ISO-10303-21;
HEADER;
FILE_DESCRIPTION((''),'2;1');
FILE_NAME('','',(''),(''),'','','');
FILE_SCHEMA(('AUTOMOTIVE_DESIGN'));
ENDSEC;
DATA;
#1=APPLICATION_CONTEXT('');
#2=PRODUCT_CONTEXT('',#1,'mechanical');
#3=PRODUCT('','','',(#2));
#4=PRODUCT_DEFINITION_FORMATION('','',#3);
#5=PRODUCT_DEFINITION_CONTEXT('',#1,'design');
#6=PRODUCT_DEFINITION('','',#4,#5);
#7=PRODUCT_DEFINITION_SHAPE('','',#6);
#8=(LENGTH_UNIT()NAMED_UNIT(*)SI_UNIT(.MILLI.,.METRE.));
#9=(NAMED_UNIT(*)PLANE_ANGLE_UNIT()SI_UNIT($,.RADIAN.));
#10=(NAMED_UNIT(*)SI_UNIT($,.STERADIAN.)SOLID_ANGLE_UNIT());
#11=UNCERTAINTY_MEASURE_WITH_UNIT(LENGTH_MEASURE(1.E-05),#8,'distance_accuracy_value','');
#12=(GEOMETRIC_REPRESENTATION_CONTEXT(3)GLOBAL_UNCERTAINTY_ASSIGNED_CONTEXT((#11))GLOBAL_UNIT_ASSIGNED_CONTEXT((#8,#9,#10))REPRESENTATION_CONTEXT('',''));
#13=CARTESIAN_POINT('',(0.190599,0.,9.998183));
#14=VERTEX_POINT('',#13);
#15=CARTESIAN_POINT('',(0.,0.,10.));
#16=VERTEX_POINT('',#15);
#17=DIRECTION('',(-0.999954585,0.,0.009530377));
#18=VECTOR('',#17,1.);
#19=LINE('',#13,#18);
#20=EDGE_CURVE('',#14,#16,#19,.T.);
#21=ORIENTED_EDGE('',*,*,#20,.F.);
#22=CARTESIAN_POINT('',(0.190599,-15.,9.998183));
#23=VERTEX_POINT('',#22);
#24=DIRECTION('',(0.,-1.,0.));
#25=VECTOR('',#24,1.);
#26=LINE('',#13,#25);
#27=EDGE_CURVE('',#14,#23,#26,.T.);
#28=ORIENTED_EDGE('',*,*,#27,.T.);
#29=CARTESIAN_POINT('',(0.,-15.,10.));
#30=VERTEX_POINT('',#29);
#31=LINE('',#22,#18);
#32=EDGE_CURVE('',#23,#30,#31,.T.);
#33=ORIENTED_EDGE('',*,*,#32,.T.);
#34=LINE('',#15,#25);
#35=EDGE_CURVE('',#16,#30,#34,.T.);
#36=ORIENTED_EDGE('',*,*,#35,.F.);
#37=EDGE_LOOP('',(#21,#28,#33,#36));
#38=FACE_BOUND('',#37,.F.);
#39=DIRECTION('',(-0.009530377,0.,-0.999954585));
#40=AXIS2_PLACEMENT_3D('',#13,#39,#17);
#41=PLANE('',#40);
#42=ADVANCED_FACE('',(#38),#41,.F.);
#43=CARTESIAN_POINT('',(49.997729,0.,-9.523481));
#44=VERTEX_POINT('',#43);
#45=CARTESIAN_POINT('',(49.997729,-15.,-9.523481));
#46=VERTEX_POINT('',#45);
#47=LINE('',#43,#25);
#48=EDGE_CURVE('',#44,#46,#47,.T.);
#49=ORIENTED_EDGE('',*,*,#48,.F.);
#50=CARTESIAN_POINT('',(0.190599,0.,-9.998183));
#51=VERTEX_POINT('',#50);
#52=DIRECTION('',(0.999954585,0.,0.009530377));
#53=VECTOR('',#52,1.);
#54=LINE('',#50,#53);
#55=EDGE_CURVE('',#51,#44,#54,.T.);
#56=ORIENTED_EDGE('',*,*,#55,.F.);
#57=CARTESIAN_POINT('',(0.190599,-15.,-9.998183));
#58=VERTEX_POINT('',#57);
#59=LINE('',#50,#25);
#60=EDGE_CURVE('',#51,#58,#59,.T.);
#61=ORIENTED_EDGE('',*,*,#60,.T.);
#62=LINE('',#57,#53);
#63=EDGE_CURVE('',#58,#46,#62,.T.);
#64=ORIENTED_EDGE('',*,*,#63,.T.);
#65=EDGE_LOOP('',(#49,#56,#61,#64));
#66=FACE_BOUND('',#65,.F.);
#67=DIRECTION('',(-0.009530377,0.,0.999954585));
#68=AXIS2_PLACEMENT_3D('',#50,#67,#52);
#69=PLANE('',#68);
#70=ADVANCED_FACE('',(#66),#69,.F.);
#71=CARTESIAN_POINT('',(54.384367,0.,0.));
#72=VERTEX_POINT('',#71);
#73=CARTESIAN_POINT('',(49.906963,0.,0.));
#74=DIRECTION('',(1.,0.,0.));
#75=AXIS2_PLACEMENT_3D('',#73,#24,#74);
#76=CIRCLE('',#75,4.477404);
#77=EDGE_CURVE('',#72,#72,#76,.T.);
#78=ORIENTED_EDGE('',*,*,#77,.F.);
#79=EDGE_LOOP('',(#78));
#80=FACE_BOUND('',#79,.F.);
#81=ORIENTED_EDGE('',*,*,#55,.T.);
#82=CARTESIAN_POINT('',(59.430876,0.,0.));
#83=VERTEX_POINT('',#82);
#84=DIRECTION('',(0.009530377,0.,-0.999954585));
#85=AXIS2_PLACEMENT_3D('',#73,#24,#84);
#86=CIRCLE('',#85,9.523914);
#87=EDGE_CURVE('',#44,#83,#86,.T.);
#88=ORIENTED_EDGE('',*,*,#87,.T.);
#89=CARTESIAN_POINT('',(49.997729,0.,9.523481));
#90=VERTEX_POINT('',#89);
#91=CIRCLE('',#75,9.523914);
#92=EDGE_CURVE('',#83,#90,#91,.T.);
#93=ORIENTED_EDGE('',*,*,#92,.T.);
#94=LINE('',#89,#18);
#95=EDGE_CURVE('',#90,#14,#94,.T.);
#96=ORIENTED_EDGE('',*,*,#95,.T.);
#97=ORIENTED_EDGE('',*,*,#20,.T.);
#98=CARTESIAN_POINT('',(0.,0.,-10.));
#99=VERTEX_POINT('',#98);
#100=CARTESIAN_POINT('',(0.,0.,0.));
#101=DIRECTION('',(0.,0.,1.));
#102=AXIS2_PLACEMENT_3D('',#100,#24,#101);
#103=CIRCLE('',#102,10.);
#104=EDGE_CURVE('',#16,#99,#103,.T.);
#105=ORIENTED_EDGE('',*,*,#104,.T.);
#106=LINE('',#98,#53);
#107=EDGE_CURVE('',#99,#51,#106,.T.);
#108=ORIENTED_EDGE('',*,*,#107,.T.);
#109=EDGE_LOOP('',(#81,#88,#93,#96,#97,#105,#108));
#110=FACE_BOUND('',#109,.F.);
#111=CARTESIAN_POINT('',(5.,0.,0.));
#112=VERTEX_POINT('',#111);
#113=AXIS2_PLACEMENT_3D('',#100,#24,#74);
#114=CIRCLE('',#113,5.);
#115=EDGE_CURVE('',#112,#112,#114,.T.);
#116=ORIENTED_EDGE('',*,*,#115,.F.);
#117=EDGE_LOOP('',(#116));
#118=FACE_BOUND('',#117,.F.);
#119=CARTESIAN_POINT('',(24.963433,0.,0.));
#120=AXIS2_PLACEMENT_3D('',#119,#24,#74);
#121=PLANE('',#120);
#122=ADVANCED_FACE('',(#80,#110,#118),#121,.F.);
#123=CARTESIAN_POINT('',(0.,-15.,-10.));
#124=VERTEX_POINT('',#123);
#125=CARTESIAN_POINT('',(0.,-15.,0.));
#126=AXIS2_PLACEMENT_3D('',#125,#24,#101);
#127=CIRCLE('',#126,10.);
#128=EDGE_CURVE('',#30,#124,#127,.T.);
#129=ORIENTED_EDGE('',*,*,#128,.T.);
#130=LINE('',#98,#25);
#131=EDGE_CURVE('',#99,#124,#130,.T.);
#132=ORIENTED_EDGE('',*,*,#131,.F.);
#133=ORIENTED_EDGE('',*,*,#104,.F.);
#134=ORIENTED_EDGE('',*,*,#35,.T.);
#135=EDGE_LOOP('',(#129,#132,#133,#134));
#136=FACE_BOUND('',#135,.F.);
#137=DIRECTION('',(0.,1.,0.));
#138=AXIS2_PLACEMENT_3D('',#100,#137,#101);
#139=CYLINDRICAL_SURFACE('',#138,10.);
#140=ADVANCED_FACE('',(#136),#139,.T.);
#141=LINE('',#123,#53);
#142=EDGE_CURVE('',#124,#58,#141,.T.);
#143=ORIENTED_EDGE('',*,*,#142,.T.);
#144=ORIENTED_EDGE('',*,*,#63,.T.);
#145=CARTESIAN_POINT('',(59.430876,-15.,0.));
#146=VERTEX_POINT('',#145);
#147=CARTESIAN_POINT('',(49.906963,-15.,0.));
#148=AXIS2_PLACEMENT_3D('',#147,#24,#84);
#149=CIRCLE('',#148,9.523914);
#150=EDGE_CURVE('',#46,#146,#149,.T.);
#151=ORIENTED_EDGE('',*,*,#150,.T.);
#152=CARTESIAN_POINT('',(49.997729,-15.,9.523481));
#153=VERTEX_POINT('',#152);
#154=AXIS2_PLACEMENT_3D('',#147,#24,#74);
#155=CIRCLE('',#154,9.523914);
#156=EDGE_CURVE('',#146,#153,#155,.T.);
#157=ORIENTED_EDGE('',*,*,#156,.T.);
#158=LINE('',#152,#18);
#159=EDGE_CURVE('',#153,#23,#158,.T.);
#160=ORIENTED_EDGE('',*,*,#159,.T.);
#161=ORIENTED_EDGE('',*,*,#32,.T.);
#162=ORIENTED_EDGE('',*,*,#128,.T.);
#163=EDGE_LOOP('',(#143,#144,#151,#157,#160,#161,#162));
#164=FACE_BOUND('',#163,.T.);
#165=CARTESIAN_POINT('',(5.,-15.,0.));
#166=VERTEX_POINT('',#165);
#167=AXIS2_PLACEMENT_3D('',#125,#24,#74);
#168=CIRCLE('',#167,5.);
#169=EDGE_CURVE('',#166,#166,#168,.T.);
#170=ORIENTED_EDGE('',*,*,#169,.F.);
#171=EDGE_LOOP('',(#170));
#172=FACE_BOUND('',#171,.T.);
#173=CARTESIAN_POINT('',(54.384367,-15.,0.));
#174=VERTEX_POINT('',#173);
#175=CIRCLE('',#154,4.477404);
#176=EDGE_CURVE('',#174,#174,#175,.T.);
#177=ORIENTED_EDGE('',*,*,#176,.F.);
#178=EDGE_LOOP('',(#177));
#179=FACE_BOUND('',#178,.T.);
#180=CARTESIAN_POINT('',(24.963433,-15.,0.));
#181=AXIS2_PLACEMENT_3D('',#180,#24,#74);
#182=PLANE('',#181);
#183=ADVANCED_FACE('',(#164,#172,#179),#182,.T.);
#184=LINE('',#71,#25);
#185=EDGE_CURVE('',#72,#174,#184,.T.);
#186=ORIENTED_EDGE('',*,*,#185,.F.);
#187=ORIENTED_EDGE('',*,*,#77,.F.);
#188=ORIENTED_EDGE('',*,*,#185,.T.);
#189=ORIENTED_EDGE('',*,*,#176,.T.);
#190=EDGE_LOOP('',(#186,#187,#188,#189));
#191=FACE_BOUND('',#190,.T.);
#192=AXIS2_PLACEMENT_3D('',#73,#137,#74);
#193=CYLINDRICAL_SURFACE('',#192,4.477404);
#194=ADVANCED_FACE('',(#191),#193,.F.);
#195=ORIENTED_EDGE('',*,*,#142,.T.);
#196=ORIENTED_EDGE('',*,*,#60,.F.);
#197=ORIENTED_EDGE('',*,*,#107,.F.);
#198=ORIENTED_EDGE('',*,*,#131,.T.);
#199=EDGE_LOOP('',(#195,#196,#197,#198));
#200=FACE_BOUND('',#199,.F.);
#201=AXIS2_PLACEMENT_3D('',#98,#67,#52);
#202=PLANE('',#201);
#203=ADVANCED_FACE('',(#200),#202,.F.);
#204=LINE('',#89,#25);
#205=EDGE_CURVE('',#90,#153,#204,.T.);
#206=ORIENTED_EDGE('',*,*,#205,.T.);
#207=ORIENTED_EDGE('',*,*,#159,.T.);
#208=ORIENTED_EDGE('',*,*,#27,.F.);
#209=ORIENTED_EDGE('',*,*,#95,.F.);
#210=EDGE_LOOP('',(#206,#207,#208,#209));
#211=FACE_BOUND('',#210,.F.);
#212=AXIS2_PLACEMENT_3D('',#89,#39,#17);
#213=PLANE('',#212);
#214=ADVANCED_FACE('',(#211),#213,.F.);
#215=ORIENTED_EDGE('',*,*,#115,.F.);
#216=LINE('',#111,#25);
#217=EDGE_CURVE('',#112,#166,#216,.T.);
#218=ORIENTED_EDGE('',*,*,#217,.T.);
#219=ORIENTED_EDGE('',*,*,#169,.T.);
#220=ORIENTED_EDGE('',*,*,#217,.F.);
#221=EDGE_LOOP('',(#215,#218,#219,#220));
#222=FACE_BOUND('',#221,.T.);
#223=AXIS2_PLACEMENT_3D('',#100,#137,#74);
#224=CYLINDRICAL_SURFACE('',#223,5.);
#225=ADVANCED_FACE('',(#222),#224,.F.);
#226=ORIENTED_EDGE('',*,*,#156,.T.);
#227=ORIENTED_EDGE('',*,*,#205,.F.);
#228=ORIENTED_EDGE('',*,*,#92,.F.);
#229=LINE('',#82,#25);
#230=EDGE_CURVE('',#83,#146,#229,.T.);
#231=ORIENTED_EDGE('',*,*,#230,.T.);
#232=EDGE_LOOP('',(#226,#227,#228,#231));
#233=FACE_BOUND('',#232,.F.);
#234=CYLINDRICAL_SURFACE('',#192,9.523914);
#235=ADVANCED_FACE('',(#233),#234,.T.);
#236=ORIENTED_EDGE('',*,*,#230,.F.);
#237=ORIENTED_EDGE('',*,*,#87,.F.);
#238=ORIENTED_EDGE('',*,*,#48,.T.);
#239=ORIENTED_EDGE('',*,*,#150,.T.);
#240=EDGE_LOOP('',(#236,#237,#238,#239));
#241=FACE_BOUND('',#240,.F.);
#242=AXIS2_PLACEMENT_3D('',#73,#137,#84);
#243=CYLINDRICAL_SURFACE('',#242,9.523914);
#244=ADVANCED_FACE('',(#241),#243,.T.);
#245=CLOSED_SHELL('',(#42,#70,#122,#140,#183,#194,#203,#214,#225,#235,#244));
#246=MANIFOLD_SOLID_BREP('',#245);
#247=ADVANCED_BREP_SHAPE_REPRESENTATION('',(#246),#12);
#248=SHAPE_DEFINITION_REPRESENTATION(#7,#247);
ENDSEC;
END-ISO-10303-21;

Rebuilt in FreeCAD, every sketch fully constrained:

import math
import FreeCAD as App
import Part
import Sketcher

V = App.Vector

doc = App.newDocument("Part")
body = doc.addObject("PartDesign::Body", "Body")

# Sketch on XZ plane
sketch1 = body.newObject("Sketcher::SketchObject", "Sketch")
sketch1.AttachmentSupport = (doc.getObject("XZ_Plane"), [""])
sketch1.MapMode = "FlatFace"
sketch1.addGeometry([
    Part.LineSegment(V(50, 9.52, 0), V(0.19, 10, 0)),  # 0
    Part.LineSegment(V(0.19, 10, 0), V(0, 10, 0)),  # 1
    Part.ArcOfCircle(Part.Circle(V(0, 0, 0), V(0, 0, 1), 10), math.radians(90), math.radians(270)),  # 2
    Part.LineSegment(V(0, -10, 0), V(0.19, -10, 0)),  # 3
    Part.LineSegment(V(0.19, -10, 0), V(50, -9.52, 0)),  # 4
    Part.ArcOfCircle(Part.Circle(V(49.91, 0, 0), V(0, 0, 1), 9.52), math.radians(-89), math.radians(0)),  # 5
    Part.ArcOfCircle(Part.Circle(V(49.91, 0, 0), V(0, 0, 1), 9.52), math.radians(0), math.radians(89)),  # 6
    Part.Circle(V(0, 0, 0), V(0, 0, 1), 5),  # 7
    Part.Circle(V(49.91, 0, 0), V(0, 0, 1), 4.48),  # 8
], False)
sketch1.addConstraint([
    Sketcher.Constraint("Coincident", 0, 2, 1, 1),
    Sketcher.Constraint("Coincident", 1, 2, 2, 1),
    Sketcher.Constraint("Coincident", 2, 2, 3, 1),
    Sketcher.Constraint("Coincident", 3, 2, 4, 1),
    Sketcher.Constraint("Tangent", 4, 2, 5, 1),
    Sketcher.Constraint("Tangent", 5, 2, 6, 1),
    Sketcher.Constraint("Tangent", 6, 2, 0, 1),
    Sketcher.Constraint("Coincident", 2, 3, -1, 1),
    Sketcher.Constraint("Coincident", 7, 3, -1, 1),
    Sketcher.Constraint("Coincident", 8, 3, 5, 3),
    Sketcher.Constraint("Equal", 5, 6),
    Sketcher.Constraint("Symmetric", 0, 2, 3, 2, -1),
    Sketcher.Constraint("PointOnObject", 5, 3, -1),
    Sketcher.Constraint("PointOnObject", 1, 2, -2),
    Sketcher.Constraint("PointOnObject", 2, 2, -2),
    Sketcher.Constraint("PointOnObject", 5, 2, -1),
    Sketcher.Constraint("Parallel", 0, 1),
    Sketcher.Constraint("Diameter", 7, 10.0),
    Sketcher.Constraint("Radius", 2, 10.0),
    Sketcher.Constraint("Diameter", 8, 8.954808),
    Sketcher.Constraint("Radius", 5, 9.523914),
    Sketcher.Constraint("DistanceX", -1, 1, 0, 2, 0.190599),
    Sketcher.Constraint("DistanceX", -1, 1, 4, 2, 49.997729),
])
pad1 = body.newObject("PartDesign::Pad", "Pad")
pad1.Profile = sketch1
pad1.Length = 15

doc.recompute()
